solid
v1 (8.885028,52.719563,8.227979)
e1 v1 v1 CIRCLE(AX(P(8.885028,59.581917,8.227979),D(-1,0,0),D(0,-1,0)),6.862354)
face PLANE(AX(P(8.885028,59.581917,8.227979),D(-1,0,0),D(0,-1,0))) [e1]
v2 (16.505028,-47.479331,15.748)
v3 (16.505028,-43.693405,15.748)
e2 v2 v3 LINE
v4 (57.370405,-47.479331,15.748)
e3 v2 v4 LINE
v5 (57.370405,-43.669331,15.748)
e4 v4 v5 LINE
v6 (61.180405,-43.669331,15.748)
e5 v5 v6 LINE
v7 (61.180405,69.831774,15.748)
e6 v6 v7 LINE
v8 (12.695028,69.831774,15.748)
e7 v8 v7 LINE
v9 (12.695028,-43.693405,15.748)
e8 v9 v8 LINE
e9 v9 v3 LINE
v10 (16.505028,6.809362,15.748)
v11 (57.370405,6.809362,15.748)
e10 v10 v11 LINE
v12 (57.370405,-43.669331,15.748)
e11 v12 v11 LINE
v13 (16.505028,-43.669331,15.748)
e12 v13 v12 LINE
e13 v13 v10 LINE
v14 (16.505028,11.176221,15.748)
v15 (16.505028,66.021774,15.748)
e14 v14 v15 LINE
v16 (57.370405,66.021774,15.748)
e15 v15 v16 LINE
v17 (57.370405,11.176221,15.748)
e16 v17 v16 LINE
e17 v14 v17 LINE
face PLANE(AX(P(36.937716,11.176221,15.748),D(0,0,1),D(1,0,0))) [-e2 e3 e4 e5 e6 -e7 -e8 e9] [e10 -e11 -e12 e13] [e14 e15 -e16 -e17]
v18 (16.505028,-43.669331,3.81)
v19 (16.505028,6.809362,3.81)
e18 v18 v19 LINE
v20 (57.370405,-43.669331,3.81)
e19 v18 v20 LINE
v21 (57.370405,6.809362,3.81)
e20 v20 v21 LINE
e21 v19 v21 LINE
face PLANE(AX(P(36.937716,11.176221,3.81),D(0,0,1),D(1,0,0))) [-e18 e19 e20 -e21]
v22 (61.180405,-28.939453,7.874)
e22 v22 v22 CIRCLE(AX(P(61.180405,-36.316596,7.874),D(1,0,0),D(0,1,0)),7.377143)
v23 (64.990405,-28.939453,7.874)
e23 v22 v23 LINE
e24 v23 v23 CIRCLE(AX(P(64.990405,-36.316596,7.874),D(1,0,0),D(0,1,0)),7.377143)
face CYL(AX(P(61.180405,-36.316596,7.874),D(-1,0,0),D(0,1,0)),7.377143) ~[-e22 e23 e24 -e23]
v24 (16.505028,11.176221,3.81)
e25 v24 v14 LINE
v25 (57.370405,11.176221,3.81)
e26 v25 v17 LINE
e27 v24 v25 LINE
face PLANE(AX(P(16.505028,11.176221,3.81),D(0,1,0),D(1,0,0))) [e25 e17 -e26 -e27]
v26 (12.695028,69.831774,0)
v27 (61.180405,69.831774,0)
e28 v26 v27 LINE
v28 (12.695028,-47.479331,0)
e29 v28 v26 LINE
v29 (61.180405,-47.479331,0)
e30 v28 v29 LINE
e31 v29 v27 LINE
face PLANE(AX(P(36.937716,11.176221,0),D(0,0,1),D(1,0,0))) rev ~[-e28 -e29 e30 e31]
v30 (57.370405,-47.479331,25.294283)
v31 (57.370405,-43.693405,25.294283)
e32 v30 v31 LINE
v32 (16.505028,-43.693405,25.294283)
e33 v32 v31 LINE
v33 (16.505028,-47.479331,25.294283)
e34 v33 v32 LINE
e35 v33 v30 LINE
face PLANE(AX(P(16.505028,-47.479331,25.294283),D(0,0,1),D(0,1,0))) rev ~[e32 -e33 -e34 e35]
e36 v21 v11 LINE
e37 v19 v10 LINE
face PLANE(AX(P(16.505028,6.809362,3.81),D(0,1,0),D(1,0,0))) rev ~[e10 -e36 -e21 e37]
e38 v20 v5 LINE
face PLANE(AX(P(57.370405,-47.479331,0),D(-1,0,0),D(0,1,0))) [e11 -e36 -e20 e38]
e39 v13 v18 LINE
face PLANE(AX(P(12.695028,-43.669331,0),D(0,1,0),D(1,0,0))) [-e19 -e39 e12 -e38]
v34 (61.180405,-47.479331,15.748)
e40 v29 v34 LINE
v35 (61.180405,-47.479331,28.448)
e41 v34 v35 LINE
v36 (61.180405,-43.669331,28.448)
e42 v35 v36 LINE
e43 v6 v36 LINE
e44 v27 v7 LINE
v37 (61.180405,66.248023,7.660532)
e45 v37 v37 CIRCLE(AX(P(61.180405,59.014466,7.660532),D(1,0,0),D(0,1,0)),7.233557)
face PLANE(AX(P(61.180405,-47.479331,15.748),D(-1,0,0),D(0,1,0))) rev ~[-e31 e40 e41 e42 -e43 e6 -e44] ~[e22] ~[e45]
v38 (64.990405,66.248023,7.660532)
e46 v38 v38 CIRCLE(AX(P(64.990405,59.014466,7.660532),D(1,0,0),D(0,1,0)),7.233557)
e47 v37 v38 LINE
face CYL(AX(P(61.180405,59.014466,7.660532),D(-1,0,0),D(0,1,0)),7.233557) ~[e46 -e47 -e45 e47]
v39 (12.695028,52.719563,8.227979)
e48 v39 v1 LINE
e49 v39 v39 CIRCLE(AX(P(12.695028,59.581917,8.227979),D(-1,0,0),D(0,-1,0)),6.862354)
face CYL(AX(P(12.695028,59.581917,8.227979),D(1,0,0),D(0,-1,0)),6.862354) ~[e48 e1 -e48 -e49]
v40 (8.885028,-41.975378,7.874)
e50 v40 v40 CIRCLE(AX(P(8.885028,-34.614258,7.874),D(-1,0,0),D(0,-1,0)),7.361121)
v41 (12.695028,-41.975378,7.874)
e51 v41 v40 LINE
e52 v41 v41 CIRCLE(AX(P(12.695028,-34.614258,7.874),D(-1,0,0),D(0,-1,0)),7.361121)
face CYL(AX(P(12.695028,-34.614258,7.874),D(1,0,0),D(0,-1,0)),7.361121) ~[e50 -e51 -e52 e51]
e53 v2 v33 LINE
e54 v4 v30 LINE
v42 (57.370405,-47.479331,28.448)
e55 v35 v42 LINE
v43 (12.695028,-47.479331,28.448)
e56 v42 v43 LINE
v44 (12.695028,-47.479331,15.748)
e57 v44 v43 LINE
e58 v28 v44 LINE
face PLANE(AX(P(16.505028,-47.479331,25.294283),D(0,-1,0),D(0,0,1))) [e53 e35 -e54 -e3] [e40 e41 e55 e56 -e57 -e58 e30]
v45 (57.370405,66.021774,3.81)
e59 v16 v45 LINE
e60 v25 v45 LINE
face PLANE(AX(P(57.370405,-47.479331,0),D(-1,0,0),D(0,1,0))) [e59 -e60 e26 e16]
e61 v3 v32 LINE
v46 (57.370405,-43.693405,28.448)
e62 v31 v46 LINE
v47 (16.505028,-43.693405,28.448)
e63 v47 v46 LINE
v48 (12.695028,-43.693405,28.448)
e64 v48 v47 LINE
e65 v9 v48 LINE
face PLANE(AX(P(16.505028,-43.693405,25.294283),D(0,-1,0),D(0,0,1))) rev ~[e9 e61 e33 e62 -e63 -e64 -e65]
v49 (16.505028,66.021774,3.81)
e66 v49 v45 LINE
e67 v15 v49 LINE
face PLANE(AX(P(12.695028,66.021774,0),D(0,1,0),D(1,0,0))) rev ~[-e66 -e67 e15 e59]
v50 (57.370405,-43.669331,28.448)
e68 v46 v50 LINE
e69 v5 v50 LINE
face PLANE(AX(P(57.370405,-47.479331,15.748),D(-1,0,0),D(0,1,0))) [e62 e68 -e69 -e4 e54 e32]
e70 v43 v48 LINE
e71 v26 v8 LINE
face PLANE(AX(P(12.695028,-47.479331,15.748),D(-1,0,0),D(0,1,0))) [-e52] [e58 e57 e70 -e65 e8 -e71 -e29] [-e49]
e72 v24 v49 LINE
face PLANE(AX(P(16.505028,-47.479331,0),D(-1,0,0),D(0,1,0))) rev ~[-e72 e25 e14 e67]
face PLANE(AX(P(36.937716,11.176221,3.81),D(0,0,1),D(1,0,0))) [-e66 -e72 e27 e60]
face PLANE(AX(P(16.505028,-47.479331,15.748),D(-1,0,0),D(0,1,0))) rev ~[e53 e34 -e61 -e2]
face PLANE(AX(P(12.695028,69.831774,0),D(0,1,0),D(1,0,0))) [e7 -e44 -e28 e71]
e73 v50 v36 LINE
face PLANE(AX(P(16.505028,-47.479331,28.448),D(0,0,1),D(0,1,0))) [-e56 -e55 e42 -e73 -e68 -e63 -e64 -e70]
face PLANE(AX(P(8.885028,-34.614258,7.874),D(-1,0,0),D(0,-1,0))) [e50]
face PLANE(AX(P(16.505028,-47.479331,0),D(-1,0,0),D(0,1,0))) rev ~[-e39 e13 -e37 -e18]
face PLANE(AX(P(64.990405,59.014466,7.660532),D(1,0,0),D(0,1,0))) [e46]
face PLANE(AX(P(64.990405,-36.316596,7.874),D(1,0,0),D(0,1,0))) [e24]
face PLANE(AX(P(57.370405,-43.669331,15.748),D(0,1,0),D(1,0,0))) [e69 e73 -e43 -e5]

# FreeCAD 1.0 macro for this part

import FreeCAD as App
import Part
import Sketcher
Q = App.Units.Quantity


def faces_at(feature, points):
    """Names of the faces that lie closest to the given points."""
    faces = feature.Shape.Faces
    near = lambda p: min(range(len(faces)), key=lambda i: faces[i].distToShape(Part.Vertex(*p))[0])
    return sorted({f"Face{near(p) + 1}" for p in points})


def add_polygon(sketch, points):
    """Adds a closed chain of lines whose ends are joined by coincident constraints."""
    first, n = sketch.GeometryCount, len(points)
    for a, b in zip(points, points[1:] + points[:1]):
        sketch.addGeometry(Part.LineSegment(App.Vector(*a, 0), App.Vector(*b, 0)), False)
    for i in range(n):
        sketch.addConstraint(Sketcher.Constraint("Coincident", first + i, 2, first + (i + 1) % n, 1))

doc = App.newDocument("Part")
params = doc.addObject("Spreadsheet::Sheet", "Params")
for row, (alias, value) in enumerate([
    ("pad1_length", "0.62 in"),
    ("thickness_wall", "0.15 in"),
    ("pad2_length", "0.15 in"),
    ("pad3_length", "0.15 in"),
    ("pad4_length", "0.15 in"),
    ("pad5_length", "0.15 in"),
    ("pad6_length", "0.47 in"),
    ("sketch7_width", "0.15 in"),
    ("pad7_length", "0.5 in"),
    ("sketch8_width", "0.15 in"),
    ("pad8_length", "0.5 in"),
    ("pad9_length", "1.65 in"),
], start=1):
    params.set(f"A{row}", alias)
    params.set(f"B{row}", "=" + value)
    params.setAlias(f"B{row}", alias)

body = doc.addObject("PartDesign::Body", "Body")

sketch1 = body.newObject("Sketcher::SketchObject", "Sketch")
sketch1.AttachmentSupport = (doc.getObject("XY_Plane"), [""])
sketch1.MapMode = "FlatFace"
add_polygon(sketch1, [(13, 70), (13, -47), (61, -47), (61, 70)])
sketch1.addConstraint([
    Sketcher.Constraint("Vertical", 0),
    Sketcher.Constraint("Horizontal", 1),
    Sketcher.Constraint("Vertical", 2),
    Sketcher.Constraint("Horizontal", 3),
    Sketcher.Constraint("DistanceX", 1, 1, 1, 2, Q("48.485378 mm")),
    Sketcher.Constraint("DistanceY", 0, 2, 0, 1, Q("117.311105 mm")),
    Sketcher.Constraint("DistanceY", 0, 2, -1, 1, Q("47.479331 mm")),
    Sketcher.Constraint("DistanceX", -1, 1, 0, 2, Q("12.695028 mm")),
])
pad1 = body.newObject("PartDesign::Pad", "Pad")
pad1.Profile = sketch1
pad1.setExpression("Length", "Params.pad1_length")
doc.recompute()

thickness = body.newObject("PartDesign::Thickness", "Thickness")
thickness.Base = (pad1, faces_at(pad1, [(36.938, 11.176, 15.748)]))
thickness.setExpression("Value", "Params.thickness_wall")
thickness.Reversed = True
thickness.Join = "Arc"

sketch2 = body.newObject("Sketcher::SketchObject", "Sketch001")
sketch2.AttachmentSupport = (doc.getObject("YZ_Plane"), [""])
sketch2.MapMode = "FlatFace"
sketch2.AttachmentOffset = App.Placement(App.Vector(0, 0, 61.180405), App.Rotation())
sketch2.addGeometry(Part.Circle(App.Vector(-36, 8, 0), App.Vector(0, 0, 1), 7), False)
sketch2.addConstraint([
    Sketcher.Constraint("DistanceY", -1, 1, 0, 3, Q("0.31 in")),
    Sketcher.Constraint("Diameter", 0, Q("14.754286 mm")),
    Sketcher.Constraint("DistanceX", 0, 3, -1, 1, Q("36.316596 mm")),
])
pad2 = body.newObject("PartDesign::Pad", "Pad001")
pad2.Profile = sketch2
pad2.setExpression("Length", "Params.pad2_length")

sketch3 = body.newObject("Sketcher::SketchObject", "Sketch002")
sketch3.AttachmentSupport = (doc.getObject("YZ_Plane"), [""])
sketch3.MapMode = "FlatFace"
sketch3.AttachmentOffset = App.Placement(App.Vector(0, 0, 61.180405), App.Rotation())
sketch3.addGeometry(Part.Circle(App.Vector(59, 8, 0), App.Vector(0, 0, 1), 7), False)
sketch3.addConstraint([
    Sketcher.Constraint("Diameter", 0, Q("14.467114 mm")),
    Sketcher.Constraint("DistanceX", -1, 1, 0, 3, Q("59.014466 mm")),
    Sketcher.Constraint("DistanceY", -1, 1, 0, 3, Q("7.660532 mm")),
])
pad3 = body.newObject("PartDesign::Pad", "Pad002")
pad3.Profile = sketch3
pad3.setExpression("Length", "Params.pad3_length")

sketch4 = body.newObject("Sketcher::SketchObject", "Sketch003")
sketch4.AttachmentSupport = (doc.getObject("YZ_Plane"), [""])
sketch4.MapMode = "FlatFace"
sketch4.AttachmentOffset = App.Placement(App.Vector(0, 0, 12.695028), App.Rotation())
sketch4.addGeometry(Part.Circle(App.Vector(60, 8, 0), App.Vector(0, 0, 1), 7), False)
sketch4.addConstraint([
    Sketcher.Constraint("Diameter", 0, Q("13.724709 mm")),
    Sketcher.Constraint("DistanceY", -1, 1, 0, 3, Q("8.227979 mm")),
    Sketcher.Constraint("DistanceX", -1, 1, 0, 3, Q("59.581917 mm")),
])
pad4 = body.newObject("PartDesign::Pad", "Pad003")
pad4.Profile = sketch4
pad4.setExpression("Length", "Params.pad4_length")
pad4.Reversed = True

sketch5 = body.newObject("Sketcher::SketchObject", "Sketch004")
sketch5.AttachmentSupport = (doc.getObject("YZ_Plane"), [""])
sketch5.MapMode = "FlatFace"
sketch5.AttachmentOffset = App.Placement(App.Vector(0, 0, 12.695028), App.Rotation())
sketch5.addGeometry(Part.Circle(App.Vector(-35, 8, 0), App.Vector(0, 0, 1), 7), False)
sketch5.addConstraint([
    Sketcher.Constraint("DistanceY", -1, 1, 0, 3, Q("0.31 in")),
    Sketcher.Constraint("Diameter", 0, Q("14.722241 mm")),
    Sketcher.Constraint("DistanceX", 0, 3, -1, 1, Q("34.614258 mm")),
])
pad5 = body.newObject("PartDesign::Pad", "Pad004")
pad5.Profile = sketch5
pad5.setExpression("Length", "Params.pad5_length")
pad5.Reversed = True

sketch6 = body.newObject("Sketcher::SketchObject", "Sketch005")
sketch6.AttachmentSupport = (doc.getObject("XY_Plane"), [""])
sketch6.MapMode = "FlatFace"
sketch6.AttachmentOffset = App.Placement(App.Vector(0, 0, 0.15 * 25.4), App.Rotation())
add_polygon(sketch6, [(16.5, 11.2), (16.5, 6.8), (57.4, 6.8), (57.4, 11.2)])
sketch6.addConstraint([
    Sketcher.Constraint("Vertical", 0),
    Sketcher.Constraint("Horizontal", 1),
    Sketcher.Constraint("Vertical", 2),
    Sketcher.Constraint("Horizontal", 3),
    Sketcher.Constraint("DistanceY", 0, 2, 0, 1, Q("4.366859 mm")),
    Sketcher.Constraint("DistanceX", 1, 1, 1, 2, Q("40.865378 mm")),
    Sketcher.Constraint("DistanceY", -1, 1, 0, 2, Q("6.809362 mm")),
    Sketcher.Constraint("DistanceX", -1, 1, 0, 2, Q("16.505028 mm")),
])
pad6 = body.newObject("PartDesign::Pad", "Pad005")
pad6.Profile = sketch6
pad6.setExpression("Length", "Params.pad6_length")

sketch7 = body.newObject("Sketcher::SketchObject", "Sketch006")
sketch7.AttachmentSupport = (doc.getObject("XY_Plane"), [""])
sketch7.MapMode = "FlatFace"
sketch7.AttachmentOffset = App.Placement(App.Vector(0, 0, 0.62 * 25.4), App.Rotation())
add_polygon(sketch7, [(12.7, -43.7), (12.7, -47.5), (16.5, -47.5), (16.5, -43.7)])
sketch7.addConstraint([
    Sketcher.Constraint("Vertical", 0),
    Sketcher.Constraint("Horizontal", 1),
    Sketcher.Constraint("Vertical", 2),
    Sketcher.Constraint("Horizontal", 3),
    Sketcher.Constraint("DistanceX", 1, 1, 1, 2, Q("0.15 in")),
    Sketcher.Constraint("DistanceY", 0, 2, 0, 1, Q("3.785927 mm")),
    Sketcher.Constraint("DistanceY", 0, 2, -1, 1, Q("47.479331 mm")),
    Sketcher.Constraint("DistanceX", -1, 1, 0, 2, Q("12.695028 mm")),
])
sketch7.setExpression("Constraints[8]", "Params.sketch7_width")
pad7 = body.newObject("PartDesign::Pad", "Pad006")
pad7.Profile = sketch7
pad7.setExpression("Length", "Params.pad7_length")

sketch8 = body.newObject("Sketcher::SketchObject", "Sketch007")
sketch8.AttachmentSupport = (doc.getObject("XY_Plane"), [""])
sketch8.MapMode = "FlatFace"
sketch8.AttachmentOffset = App.Placement(App.Vector(0, 0, 0.62 * 25.4), App.Rotation())
add_polygon(sketch8, [(57.4, -43.7), (57.4, -47.5), (61.2, -47.5), (61.2, -43.7)])
sketch8.addConstraint([
    Sketcher.Constraint("Vertical", 0),
    Sketcher.Constraint("Horizontal", 1),
    Sketcher.Constraint("Vertical", 2),
    Sketcher.Constraint("Horizontal", 3),
    Sketcher.Constraint("Equal", 3, 0),
    Sketcher.Constraint("DistanceX", 1, 1, 1, 2, Q("0.15 in")),
    Sketcher.Constraint("DistanceY", 0, 2, -1, 1, Q("47.479331 mm")),
    Sketcher.Constraint("DistanceX", -1, 1, 0, 2, Q("57.370405 mm")),
])
sketch8.setExpression("Constraints[9]", "Params.sketch8_width")
pad8 = body.newObject("PartDesign::Pad", "Pad007")
pad8.Profile = sketch8
pad8.setExpression("Length", "Params.pad8_length")

sketch9 = body.newObject("Sketcher::SketchObject", "Sketch008")
sketch9.AttachmentSupport = (doc.getObject("YZ_Plane"), [""])
sketch9.MapMode = "FlatFace"
sketch9.AttachmentOffset = App.Placement(App.Vector(0, 0, 16.505028), App.Rotation())
add_polygon(sketch9, [(-47.5, 28.4), (-47.5, 25.3), (-43.7, 25.3), (-43.7, 28.4)])
sketch9.addConstraint([
    Sketcher.Constraint("Vertical", 0),
    Sketcher.Constraint("Horizontal", 1),
    Sketcher.Constraint("Vertical", 2),
    Sketcher.Constraint("Horizontal", 3),
    Sketcher.Constraint("DistanceY", -1, 1, 2, 2, Q("1.12 in")),
    Sketcher.Constraint("DistanceX", 1, 1, 1, 2, Q("3.785927 mm")),
    Sketcher.Constraint("DistanceY", 0, 2, 0, 1, Q("3.153717 mm")),
    Sketcher.Constraint("DistanceX", 0, 2, -1, 1, Q("47.479331 mm")),
])
pad9 = body.newObject("PartDesign::Pad", "Pad008")
pad9.Profile = sketch9
pad9.setExpression("Length", "Params.pad9_length")

doc.recompute()
